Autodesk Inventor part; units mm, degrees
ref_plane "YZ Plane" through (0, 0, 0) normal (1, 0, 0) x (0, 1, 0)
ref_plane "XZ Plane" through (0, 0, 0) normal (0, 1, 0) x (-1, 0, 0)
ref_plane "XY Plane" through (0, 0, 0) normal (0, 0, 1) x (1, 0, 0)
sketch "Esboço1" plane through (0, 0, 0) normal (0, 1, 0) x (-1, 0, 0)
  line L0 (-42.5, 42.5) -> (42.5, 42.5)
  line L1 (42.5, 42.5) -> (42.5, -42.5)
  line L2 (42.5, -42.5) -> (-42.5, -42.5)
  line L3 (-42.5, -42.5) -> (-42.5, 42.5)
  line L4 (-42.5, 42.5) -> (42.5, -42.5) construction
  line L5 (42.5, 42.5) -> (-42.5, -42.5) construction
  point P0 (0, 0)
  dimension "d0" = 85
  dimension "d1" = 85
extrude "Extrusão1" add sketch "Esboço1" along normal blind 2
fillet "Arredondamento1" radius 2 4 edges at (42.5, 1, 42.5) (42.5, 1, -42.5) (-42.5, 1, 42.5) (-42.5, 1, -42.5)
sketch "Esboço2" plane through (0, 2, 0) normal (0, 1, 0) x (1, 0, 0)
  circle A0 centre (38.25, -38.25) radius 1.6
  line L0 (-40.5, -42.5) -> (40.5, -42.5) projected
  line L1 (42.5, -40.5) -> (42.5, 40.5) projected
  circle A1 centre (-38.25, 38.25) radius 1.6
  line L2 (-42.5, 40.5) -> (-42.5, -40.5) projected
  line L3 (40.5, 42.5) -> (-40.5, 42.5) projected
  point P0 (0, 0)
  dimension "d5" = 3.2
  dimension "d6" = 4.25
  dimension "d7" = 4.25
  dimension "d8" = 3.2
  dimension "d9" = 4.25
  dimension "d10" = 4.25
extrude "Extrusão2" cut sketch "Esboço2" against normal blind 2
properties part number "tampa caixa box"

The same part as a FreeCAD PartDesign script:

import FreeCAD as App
import Part
import Sketcher

V = App.Vector
Q = App.Units.Quantity


def edges_at(feature, points):
    """Names of the edges that pass closest to the given points."""
    edges = feature.Shape.Edges
    near = lambda p: min(range(len(edges)), key=lambda i: edges[i].distToShape(Part.Vertex(*p))[0])
    return sorted({f"Edge{near(p) + 1}" for p in points})


def add_polygon(sketch, points):
    """Adds a closed chain of lines whose ends are joined by coincident constraints."""
    first, n = sketch.GeometryCount, len(points)
    for a, b in zip(points, points[1:] + points[:1]):
        sketch.addGeometry(Part.LineSegment(App.Vector(*a, 0), App.Vector(*b, 0)), False)
    for i in range(n):
        sketch.addConstraint(Sketcher.Constraint("Coincident", first + i, 2, first + (i + 1) % n, 1))

doc = App.newDocument("Part")
body = doc.addObject("PartDesign::Body", "Body")

sketch1 = body.newObject("Sketcher::SketchObject", "Sketch")
sketch1.AttachmentSupport = (doc.getObject("XZ_Plane"), [""])
sketch1.MapMode = "FlatFace"
add_polygon(sketch1, [(-42, 42), (42, 42), (42, -42), (-42, -42)])
sketch1.addConstraint(Sketcher.Constraint("Horizontal", 0))
sketch1.addConstraint(Sketcher.Constraint("Vertical", 1))
sketch1.addConstraint(Sketcher.Constraint("Horizontal", 2))
sketch1.addConstraint(Sketcher.Constraint("Vertical", 3))
sketch1.addConstraint(Sketcher.Constraint("Symmetric", 0, 2, 2, 2, -1, 1))
sketch1.addConstraint(Sketcher.Constraint("Equal", 2, 1))
sketch1.addConstraint(Sketcher.Constraint("DistanceX", 0, 1, 0, 2, Q("85 mm")))
pad1 = body.newObject("PartDesign::Pad", "Pad")
pad1.Profile = sketch1
pad1.Length = 2
pad1.Reversed = True
doc.recompute()

fillet = body.newObject("PartDesign::Fillet", "Fillet")
fillet.Base = (pad1, edges_at(pad1, [
    (42.5, 1, 42.5),
    (42.5, 1, -42.5),
    (-42.5, 1, 42.5),
    (-42.5, 1, -42.5),
]))
fillet.Radius = 2

sketch2 = body.newObject("Sketcher::SketchObject", "Sketch001")
sketch2.AttachmentSupport = (doc.getObject("XZ_Plane"), [""])
sketch2.MapMode = "FlatFace"
sketch2.AttachmentOffset = App.Placement(V(0, 0, -2), App.Rotation())
sketch2.addGeometry(Part.Circle(V(38.2, 38.2, 0), V(0, 0, 1), 1.6), False)
sketch2.addGeometry(Part.Circle(V(-38.2, -38.2, 0), V(0, 0, 1), 1.6), False)
sketch2.addConstraint(Sketcher.Constraint("Equal", 0, 1))
sketch2.addConstraint(Sketcher.Constraint("Symmetric", 0, 3, 1, 3, -1, 1))
sketch2.addConstraint(Sketcher.Constraint("Diameter", 0, Q("3.2 mm")))
sketch2.addConstraint(Sketcher.Constraint("DistanceX", 1, 3, 0, 3, Q("76.5 mm")))
sketch2.addConstraint(Sketcher.Constraint("DistanceY", 1, 3, 0, 3, Q("76.5 mm")))
pocket1 = body.newObject("PartDesign::Pocket", "Pocket")
pocket1.Profile = sketch2
pocket1.Length = 2
pocket1.Reversed = True

doc.recompute()
